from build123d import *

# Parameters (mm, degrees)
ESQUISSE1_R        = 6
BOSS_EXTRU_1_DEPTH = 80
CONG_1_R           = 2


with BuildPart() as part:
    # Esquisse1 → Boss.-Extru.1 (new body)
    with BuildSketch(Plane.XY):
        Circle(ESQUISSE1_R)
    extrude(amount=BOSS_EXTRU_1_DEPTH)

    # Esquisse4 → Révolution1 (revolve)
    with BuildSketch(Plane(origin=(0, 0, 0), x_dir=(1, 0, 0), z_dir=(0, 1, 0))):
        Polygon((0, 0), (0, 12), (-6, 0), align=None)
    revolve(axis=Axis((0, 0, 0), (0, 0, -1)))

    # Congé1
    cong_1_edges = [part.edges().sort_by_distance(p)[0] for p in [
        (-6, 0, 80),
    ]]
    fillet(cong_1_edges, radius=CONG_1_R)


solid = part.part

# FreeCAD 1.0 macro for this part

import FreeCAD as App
import Part
import Sketcher

V = App.Vector


def edges_at(feature, points):
    """Names of the edges that pass closest to the given points."""
    edges = feature.Shape.Edges
    near = lambda p: min(range(len(edges)), key=lambda i: edges[i].distToShape(Part.Vertex(*p))[0])
    return sorted({f"Edge{near(p) + 1}" for p in points})


def add_polygon(sketch, points):
    """Adds a closed chain of lines whose ends are joined by coincident constraints."""
    first, n = sketch.GeometryCount, len(points)
    for a, b in zip(points, points[1:] + points[:1]):
        sketch.addGeometry(Part.LineSegment(App.Vector(*a, 0), App.Vector(*b, 0)), False)
    for i in range(n):
        sketch.addConstraint(Sketcher.Constraint("Coincident", first + i, 2, first + (i + 1) % n, 1))

doc = App.newDocument("Part")
body = doc.addObject("PartDesign::Body", "Body")

# Sketch on XY plane
sketch1 = body.newObject("Sketcher::SketchObject", "Sketch")
sketch1.AttachmentSupport = (doc.getObject("XY_Plane"), [""])
sketch1.MapMode = "FlatFace"
sketch1.addGeometry(Part.Circle(V(0, 0, 0), V(0, 0, 1), 6), False)
sketch1.addConstraint([
    Sketcher.Constraint("Coincident", 0, 3, -1, 1),
    Sketcher.Constraint("Diameter", 0, 12.0),
])
pad1 = body.newObject("PartDesign::Pad", "Pad")
pad1.Profile = sketch1
pad1.Length = 80

# Sketch on XZ plane
sketch2 = body.newObject("Sketcher::SketchObject", "Sketch001")
sketch2.AttachmentSupport = (doc.getObject("XZ_Plane"), [""])
sketch2.MapMode = "FlatFace"
add_polygon(sketch2, [(0, 0), (0, -12), (-6, 0)])  # lines 0-2
sketch2.addConstraint([
    Sketcher.Constraint("Vertical", 0),
    Sketcher.Constraint("Horizontal", 2),
    Sketcher.Constraint("Coincident", 2, 2, -1, 1),
    Sketcher.Constraint("DistanceX", 2, 1, 2, 2, 6.0),
    Sketcher.Constraint("DistanceY", 0, 2, 0, 1, 12.0),
])
revolution = body.newObject("PartDesign::Revolution", "Revolution")
revolution.Profile = sketch2
revolution.ReferenceAxis = (sketch2, ["V_Axis"])
revolution.Angle = 360
doc.recompute()

fillet = body.newObject("PartDesign::Fillet", "Fillet")
fillet.Base = (revolution, edges_at(revolution, [(-6, 0, 80)]))
fillet.Radius = 2

doc.recompute()
